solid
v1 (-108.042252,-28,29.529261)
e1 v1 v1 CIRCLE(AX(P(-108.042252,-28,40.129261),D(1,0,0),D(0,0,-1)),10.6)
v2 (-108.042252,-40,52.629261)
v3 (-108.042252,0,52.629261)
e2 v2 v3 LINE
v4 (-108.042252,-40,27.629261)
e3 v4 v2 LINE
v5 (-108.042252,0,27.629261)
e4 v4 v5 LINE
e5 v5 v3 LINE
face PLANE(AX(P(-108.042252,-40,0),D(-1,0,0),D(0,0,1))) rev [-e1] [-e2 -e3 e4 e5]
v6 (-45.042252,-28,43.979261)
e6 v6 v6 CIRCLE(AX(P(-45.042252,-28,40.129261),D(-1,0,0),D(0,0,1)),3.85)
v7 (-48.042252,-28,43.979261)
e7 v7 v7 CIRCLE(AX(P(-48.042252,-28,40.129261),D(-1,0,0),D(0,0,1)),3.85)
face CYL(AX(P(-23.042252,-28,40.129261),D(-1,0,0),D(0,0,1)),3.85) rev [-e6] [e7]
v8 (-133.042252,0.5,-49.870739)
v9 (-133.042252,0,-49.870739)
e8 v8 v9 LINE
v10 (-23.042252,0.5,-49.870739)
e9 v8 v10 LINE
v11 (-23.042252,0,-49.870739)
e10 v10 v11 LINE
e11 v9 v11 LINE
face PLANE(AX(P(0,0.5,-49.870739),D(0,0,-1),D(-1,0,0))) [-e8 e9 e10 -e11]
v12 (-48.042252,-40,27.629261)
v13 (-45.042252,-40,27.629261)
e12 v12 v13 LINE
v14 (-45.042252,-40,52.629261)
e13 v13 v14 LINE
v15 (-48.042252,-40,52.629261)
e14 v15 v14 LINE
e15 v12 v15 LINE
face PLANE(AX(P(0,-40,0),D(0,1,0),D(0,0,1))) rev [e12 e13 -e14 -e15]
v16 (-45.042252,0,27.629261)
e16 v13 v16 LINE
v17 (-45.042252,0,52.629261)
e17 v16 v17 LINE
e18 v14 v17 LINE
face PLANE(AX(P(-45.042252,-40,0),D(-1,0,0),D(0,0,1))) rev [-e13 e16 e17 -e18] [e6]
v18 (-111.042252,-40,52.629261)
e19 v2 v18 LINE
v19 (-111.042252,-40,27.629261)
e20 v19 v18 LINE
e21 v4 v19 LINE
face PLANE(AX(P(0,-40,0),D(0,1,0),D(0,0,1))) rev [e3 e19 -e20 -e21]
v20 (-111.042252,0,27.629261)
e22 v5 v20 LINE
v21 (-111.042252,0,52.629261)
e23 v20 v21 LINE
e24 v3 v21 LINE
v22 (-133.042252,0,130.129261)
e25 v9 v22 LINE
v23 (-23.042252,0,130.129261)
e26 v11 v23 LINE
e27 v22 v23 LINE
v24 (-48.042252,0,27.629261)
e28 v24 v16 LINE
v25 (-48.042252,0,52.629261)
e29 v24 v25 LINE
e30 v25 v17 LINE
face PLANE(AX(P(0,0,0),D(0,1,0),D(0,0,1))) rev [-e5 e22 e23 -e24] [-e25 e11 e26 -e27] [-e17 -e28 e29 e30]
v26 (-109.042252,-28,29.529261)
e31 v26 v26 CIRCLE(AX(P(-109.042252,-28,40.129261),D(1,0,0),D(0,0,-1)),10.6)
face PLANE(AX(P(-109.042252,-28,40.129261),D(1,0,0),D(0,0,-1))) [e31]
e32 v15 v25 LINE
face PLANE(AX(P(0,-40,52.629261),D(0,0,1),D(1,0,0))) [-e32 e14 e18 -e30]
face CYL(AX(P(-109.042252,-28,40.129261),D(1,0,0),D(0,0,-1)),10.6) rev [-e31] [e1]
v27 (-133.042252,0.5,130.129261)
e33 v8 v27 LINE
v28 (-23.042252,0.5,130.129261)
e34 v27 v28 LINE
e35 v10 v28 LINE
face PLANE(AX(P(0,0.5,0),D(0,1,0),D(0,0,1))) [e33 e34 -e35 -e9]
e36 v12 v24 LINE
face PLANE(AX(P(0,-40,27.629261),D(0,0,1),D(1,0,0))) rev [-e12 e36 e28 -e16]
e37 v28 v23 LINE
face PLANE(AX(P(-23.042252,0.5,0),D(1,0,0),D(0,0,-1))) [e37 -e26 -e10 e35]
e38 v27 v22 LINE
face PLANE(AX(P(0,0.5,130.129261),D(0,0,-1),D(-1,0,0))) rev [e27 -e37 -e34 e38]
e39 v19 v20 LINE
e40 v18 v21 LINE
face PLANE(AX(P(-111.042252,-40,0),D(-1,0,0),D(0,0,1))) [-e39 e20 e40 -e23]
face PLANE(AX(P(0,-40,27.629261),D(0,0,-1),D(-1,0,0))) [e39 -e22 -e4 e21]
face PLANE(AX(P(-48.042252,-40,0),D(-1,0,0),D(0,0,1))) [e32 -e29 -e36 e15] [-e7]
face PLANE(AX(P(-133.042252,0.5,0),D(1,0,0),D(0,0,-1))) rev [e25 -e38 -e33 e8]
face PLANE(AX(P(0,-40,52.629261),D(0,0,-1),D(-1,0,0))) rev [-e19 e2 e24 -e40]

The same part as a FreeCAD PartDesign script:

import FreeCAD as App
import Part
import Sketcher
from FreeCAD import Vector


def add_polygon(sketch, points):
    """Adds a closed chain of lines whose ends are joined by coincident constraints."""
    first, n = sketch.GeometryCount, len(points)
    for a, b in zip(points, points[1:] + points[:1]):
        sketch.addGeometry(Part.LineSegment(App.Vector(*a, 0), App.Vector(*b, 0)), False)
    for i in range(n):
        sketch.addConstraint(Sketcher.Constraint("Coincident", first + i, 2, first + (i + 1) % n, 1))

doc = App.newDocument("Part")
params = doc.addObject("Spreadsheet::Sheet", "Params")
for row, (alias, value) in enumerate([
    ("sketch1_width", "110 mm"),
    ("sketch1_height", "180 mm"),
    ("pad1_length", "0.5 mm"),
    ("sketch2_width", "3 mm"),
    ("sketch2_height", "25 mm"),
    ("pad2_length", "40 mm"),
    ("sketch3_diameter", "21.2 mm"),
    ("pocket1_length", "1 mm"),
    ("sketch4_diameter", "7.7 mm"),
], start=1):
    params.set(f"A{row}", alias)
    params.set(f"B{row}", "=" + value)
    params.setAlias(f"B{row}", alias)

body = doc.addObject("PartDesign::Body", "Body")

# Sketch on XZ plane
sketch1 = body.newObject("Sketcher::SketchObject", "Sketch")
sketch1.AttachmentSupport = (doc.getObject("XZ_Plane"), [""])
sketch1.MapMode = "FlatFace"
add_polygon(sketch1, [(-133.042252, -49.870739), (-133.042252, 130.129261), (-23.042252, 130.129261), (-23.042252, -49.870739)])  # lines 0-3
sketch1.addConstraint([
    Sketcher.Constraint("Vertical", 0),
    Sketcher.Constraint("Horizontal", 1),
    Sketcher.Constraint("Vertical", 2),
    Sketcher.Constraint("Horizontal", 3),
    Sketcher.Constraint("DistanceX", 1, 1, 1, 2, 110.0),
    Sketcher.Constraint("DistanceY", 0, 1, 0, 2, 180.0),
    Sketcher.Constraint("DistanceX", 0, 2, -1, 1, 133.042252),
    Sketcher.Constraint("DistanceY", -1, 1, 0, 2, 130.129261),
])
sketch1.setExpression("Constraints[8]", "Params.sketch1_width")
sketch1.setExpression("Constraints[9]", "Params.sketch1_height")
pad1 = body.newObject("PartDesign::Pad", "Pad")
pad1.Profile = sketch1
pad1.setExpression("Length", "Params.pad1_length")
pad1.Reversed = True

# Sketch on XZ plane
sketch2 = body.newObject("Sketcher::SketchObject", "Sketch001")
sketch2.AttachmentSupport = (doc.getObject("XZ_Plane"), [""])
sketch2.MapMode = "FlatFace"
add_polygon(sketch2, [(-111.042252, 27.629261), (-111.042252, 52.629261), (-108.042252, 52.629261), (-108.042252, 27.629261)])  # lines 0-3
add_polygon(sketch2, [(-48.042252, 27.629261), (-48.042252, 52.629261), (-45.042252, 52.629261), (-45.042252, 27.629261)])  # lines 4-7
sketch2.addConstraint([
    Sketcher.Constraint("Vertical", 0),
    Sketcher.Constraint("Horizontal", 1),
    Sketcher.Constraint("Vertical", 2),
    Sketcher.Constraint("Horizontal", 3),
    Sketcher.Constraint("Vertical", 4),
    Sketcher.Constraint("Horizontal", 5),
    Sketcher.Constraint("Vertical", 6),
    Sketcher.Constraint("Horizontal", 7),
    Sketcher.Constraint("Horizontal", 1, 2, 4, 2),
    Sketcher.Constraint("Horizontal", 3, 2, 6, 2),
    Sketcher.Constraint("Equal", 3, 5),
    Sketcher.Constraint("DistanceX", 1, 1, 1, 2, 3.0),
    Sketcher.Constraint("DistanceY", 0, 1, 0, 2, 25.0),
    Sketcher.Constraint("DistanceX", 1, 2, 4, 2, 60.0),
    Sketcher.Constraint("DistanceX", 0, 2, -1, 1, 111.042252),
    Sketcher.Constraint("DistanceY", -1, 1, 0, 2, 52.629261),
])
sketch2.setExpression("Constraints[19]", "Params.sketch2_width")
sketch2.setExpression("Constraints[20]", "Params.sketch2_height")
pad2 = body.newObject("PartDesign::Pad", "Pad001")
pad2.Profile = sketch2
pad2.setExpression("Length", "Params.pad2_length")

# Sketch on YZ plane
sketch3 = body.newObject("Sketcher::SketchObject", "Sketch002")
sketch3.AttachmentSupport = (doc.getObject("YZ_Plane"), [""])
sketch3.MapMode = "FlatFace"
sketch3.AttachmentOffset = App.Placement(Vector(0, 0, -108.042252), App.Rotation())
sketch3.addGeometry(Part.Circle(Vector(-28, 40.129261, 0), Vector(0, 0, 1), 10.6), False)
sketch3.addConstraint([
    Sketcher.Constraint("Diameter", 0, 21.2),
    Sketcher.Constraint("DistanceX", 0, 3, -1, 1, 28.0),
    Sketcher.Constraint("DistanceY", -1, 1, 0, 3, 40.129261),
])
sketch3.setExpression("Constraints[0]", "Params.sketch3_diameter")
pocket1 = body.newObject("PartDesign::Pocket", "Pocket")
pocket1.Profile = sketch3
pocket1.setExpression("Length", "Params.pocket1_length")

# Sketch on YZ plane
sketch4 = body.newObject("Sketcher::SketchObject", "Sketch003")
sketch4.AttachmentSupport = (doc.getObject("YZ_Plane"), [""])
sketch4.MapMode = "FlatFace"
sketch4.AttachmentOffset = App.Placement(Vector(0, 0, -48.042252), App.Rotation())
sketch4.addGeometry(Part.Circle(Vector(-28, 40.129261, 0), Vector(0, 0, 1), 3.85), False)
sketch4.addConstraint([
    Sketcher.Constraint("Diameter", 0, 7.7),
    Sketcher.Constraint("DistanceX", 0, 3, -1, 1, 28.0),
    Sketcher.Constraint("DistanceY", -1, 1, 0, 3, 40.129261),
])
sketch4.setExpression("Constraints[0]", "Params.sketch4_diameter")
pocket2 = body.newObject("PartDesign::Pocket", "Pocket001")
pocket2.Profile = sketch4
pocket2.Type = "ThroughAll"
pocket2.Reversed = True

doc.recompute()
